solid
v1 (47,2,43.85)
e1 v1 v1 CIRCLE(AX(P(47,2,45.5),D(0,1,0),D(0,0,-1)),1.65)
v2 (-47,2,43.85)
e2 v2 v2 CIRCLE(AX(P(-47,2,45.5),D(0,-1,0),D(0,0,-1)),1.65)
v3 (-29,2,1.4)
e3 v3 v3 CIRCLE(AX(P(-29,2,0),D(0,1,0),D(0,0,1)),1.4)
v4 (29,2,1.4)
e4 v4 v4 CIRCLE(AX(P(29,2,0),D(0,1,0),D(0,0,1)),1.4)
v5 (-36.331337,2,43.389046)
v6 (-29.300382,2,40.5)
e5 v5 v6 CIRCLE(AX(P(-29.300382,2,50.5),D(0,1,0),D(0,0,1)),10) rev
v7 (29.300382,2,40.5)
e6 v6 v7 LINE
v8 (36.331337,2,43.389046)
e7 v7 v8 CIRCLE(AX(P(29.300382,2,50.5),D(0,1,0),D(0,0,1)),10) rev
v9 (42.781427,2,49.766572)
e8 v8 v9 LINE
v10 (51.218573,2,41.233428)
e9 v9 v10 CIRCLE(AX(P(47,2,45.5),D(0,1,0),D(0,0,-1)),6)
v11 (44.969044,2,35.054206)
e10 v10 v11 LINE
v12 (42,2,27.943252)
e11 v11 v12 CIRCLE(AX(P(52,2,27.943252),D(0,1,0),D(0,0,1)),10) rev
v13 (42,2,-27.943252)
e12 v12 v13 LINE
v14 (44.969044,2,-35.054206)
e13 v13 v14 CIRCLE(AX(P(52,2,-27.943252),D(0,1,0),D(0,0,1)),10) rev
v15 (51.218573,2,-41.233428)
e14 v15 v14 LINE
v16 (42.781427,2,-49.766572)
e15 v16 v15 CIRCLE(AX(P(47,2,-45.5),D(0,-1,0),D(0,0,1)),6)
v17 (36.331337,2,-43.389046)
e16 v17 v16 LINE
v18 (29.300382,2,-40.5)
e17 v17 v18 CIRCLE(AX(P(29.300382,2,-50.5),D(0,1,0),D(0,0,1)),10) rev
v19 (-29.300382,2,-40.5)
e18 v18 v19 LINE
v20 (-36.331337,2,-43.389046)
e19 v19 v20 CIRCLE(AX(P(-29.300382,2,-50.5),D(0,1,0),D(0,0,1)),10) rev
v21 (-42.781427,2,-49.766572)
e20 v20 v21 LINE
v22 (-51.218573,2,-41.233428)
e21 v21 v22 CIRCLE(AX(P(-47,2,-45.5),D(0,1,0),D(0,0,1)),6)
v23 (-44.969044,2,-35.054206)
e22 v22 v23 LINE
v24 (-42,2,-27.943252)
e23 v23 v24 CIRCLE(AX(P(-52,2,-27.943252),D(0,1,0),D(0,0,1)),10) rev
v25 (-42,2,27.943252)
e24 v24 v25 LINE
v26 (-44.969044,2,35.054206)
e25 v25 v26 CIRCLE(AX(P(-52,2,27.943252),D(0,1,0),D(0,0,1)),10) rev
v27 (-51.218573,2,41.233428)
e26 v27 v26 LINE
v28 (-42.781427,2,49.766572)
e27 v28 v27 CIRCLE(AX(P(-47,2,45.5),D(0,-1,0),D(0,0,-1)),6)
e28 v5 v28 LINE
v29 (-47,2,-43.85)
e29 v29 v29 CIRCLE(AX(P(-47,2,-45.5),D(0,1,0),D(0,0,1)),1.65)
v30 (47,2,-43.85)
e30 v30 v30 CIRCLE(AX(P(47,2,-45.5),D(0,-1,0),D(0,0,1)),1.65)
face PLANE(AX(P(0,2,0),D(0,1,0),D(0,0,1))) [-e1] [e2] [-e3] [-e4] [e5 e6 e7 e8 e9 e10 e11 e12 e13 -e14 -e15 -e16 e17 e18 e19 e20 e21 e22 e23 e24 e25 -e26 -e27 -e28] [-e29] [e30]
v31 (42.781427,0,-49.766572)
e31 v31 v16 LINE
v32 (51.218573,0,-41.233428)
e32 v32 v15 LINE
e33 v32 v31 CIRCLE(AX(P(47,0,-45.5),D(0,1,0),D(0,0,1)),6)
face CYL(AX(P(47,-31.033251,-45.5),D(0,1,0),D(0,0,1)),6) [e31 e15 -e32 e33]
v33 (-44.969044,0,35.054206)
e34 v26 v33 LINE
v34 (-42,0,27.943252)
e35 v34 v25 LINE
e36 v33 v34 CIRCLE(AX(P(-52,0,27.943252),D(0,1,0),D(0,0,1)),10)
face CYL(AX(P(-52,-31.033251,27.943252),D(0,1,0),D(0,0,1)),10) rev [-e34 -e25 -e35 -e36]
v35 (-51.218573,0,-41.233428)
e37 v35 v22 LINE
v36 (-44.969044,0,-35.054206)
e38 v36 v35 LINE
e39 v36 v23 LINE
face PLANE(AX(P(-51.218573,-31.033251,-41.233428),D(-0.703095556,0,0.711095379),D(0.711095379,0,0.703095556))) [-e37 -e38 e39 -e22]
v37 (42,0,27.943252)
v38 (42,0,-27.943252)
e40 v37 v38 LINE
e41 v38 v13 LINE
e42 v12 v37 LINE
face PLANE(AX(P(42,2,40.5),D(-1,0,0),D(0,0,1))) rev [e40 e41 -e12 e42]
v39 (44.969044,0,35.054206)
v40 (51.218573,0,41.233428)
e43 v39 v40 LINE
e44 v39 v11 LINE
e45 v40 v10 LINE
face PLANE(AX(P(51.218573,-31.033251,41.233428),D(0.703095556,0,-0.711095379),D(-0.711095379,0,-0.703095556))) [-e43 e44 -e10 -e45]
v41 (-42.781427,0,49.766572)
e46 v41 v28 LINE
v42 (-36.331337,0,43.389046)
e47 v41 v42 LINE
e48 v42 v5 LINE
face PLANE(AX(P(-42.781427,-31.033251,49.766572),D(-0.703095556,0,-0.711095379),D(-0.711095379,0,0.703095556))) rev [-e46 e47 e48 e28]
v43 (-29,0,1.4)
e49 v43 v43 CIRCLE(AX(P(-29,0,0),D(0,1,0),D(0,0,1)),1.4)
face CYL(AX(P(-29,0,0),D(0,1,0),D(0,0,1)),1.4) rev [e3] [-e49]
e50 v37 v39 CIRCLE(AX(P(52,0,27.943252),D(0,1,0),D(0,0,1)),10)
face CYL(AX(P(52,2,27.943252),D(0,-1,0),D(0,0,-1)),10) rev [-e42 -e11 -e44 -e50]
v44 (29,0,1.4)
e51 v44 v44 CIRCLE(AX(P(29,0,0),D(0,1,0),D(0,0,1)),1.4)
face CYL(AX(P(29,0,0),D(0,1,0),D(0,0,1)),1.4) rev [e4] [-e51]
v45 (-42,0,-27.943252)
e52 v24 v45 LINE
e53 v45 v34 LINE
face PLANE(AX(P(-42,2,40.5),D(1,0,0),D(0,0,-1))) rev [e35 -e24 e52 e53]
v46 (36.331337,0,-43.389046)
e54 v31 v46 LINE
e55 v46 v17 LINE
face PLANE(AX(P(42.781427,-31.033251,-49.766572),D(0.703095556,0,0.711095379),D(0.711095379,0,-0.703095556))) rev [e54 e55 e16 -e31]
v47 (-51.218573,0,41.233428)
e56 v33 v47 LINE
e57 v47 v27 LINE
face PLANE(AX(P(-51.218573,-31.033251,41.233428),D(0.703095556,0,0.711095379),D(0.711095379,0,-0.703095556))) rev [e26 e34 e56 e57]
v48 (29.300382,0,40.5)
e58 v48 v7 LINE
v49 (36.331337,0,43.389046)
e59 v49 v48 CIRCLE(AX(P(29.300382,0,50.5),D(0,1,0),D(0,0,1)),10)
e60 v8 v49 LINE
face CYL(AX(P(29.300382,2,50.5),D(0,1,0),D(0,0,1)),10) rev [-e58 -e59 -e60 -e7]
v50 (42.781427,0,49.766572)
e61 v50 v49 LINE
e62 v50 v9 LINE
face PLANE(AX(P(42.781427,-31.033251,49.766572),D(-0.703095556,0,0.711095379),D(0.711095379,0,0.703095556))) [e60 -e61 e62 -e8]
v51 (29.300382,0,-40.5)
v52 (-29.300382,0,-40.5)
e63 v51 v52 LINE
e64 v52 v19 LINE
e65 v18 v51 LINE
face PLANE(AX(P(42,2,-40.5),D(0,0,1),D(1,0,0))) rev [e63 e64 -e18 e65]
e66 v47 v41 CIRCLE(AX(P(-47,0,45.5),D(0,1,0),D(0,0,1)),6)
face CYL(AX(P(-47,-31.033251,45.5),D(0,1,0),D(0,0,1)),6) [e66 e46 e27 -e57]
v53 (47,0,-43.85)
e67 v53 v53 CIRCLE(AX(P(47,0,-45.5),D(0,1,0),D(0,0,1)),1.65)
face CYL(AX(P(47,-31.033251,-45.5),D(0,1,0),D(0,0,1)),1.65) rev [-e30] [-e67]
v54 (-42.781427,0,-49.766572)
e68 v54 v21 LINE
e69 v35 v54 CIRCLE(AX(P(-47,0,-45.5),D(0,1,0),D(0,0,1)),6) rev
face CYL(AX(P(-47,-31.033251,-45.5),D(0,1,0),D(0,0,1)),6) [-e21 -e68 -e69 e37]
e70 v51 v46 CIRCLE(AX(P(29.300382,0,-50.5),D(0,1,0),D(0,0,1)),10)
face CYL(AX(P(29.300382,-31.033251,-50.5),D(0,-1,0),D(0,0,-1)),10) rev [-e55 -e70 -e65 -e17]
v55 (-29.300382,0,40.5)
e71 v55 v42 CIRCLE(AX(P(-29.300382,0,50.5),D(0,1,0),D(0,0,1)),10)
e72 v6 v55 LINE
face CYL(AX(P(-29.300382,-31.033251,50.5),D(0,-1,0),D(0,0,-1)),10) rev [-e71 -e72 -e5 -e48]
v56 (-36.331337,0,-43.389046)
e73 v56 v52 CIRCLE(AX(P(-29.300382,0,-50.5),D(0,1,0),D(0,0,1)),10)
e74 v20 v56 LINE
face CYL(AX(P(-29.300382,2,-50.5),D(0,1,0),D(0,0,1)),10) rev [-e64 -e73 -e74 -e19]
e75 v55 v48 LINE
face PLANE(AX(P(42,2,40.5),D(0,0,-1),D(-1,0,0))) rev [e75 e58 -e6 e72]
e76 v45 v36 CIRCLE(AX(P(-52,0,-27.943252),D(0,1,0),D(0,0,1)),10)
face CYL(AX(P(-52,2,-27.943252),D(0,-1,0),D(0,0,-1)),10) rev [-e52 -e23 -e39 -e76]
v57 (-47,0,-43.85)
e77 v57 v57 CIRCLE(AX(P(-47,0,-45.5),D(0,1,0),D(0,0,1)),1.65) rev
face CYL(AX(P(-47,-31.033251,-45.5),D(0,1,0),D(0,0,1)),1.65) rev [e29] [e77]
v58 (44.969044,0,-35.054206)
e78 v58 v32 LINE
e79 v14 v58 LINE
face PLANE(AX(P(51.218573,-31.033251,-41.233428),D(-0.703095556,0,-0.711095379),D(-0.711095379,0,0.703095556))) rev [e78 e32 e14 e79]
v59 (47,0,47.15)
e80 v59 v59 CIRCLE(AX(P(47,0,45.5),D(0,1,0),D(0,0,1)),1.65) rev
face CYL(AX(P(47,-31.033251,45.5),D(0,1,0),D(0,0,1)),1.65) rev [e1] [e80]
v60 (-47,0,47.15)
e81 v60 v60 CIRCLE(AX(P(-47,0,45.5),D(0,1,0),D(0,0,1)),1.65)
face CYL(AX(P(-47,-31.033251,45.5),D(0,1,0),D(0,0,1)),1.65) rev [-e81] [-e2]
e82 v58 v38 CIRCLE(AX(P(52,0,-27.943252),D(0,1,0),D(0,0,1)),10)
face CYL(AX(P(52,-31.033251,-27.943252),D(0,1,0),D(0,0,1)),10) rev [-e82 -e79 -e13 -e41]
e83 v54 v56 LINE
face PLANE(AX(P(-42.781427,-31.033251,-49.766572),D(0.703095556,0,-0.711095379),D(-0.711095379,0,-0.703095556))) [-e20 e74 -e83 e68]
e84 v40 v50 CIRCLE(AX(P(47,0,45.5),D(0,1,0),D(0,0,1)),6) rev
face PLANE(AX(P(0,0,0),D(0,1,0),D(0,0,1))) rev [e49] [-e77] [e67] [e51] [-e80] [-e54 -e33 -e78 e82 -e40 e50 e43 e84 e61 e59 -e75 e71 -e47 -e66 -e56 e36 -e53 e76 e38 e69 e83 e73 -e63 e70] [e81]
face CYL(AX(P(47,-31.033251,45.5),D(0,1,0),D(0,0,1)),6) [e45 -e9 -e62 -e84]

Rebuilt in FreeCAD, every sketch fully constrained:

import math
import FreeCAD as App
import Part
import Sketcher
from FreeCAD import Vector
Q = App.Units.Quantity


def edges_at(feature, points):
    """Names of the edges that pass closest to the given points."""
    edges = feature.Shape.Edges
    near = lambda p: min(range(len(edges)), key=lambda i: edges[i].distToShape(Part.Vertex(*p))[0])
    return sorted({f"Edge{near(p) + 1}" for p in points})

doc = App.newDocument("Part")
body = doc.addObject("PartDesign::Body", "Body")

sketch1 = body.newObject("Sketcher::SketchObject", "Sketch")
sketch1.AttachmentSupport = (doc.getObject("XZ_Plane"), [""])
sketch1.MapMode = "FlatFace"
sketch1.addGeometry([
    Part.LineSegment(Vector(-42, -40, 0), Vector(-42, 40, 0)),
    Part.LineSegment(Vector(-42, 40, 0), Vector(42, 40, 0)),
    Part.LineSegment(Vector(42, 40, 0), Vector(42, -40, 0)),
    Part.LineSegment(Vector(42, -40, 0), Vector(-42, -40, 0)),
], False)
sketch1.addConstraint([
    Sketcher.Constraint("Coincident", 0, 2, 1, 1),
    Sketcher.Constraint("Coincident", 1, 2, 2, 1),
    Sketcher.Constraint("Coincident", 2, 2, 3, 1),
    Sketcher.Constraint("Coincident", 3, 2, 0, 1),
    Sketcher.Constraint("Vertical", 0),
    Sketcher.Constraint("Horizontal", 1),
    Sketcher.Constraint("Vertical", 2),
    Sketcher.Constraint("Horizontal", 3),
    Sketcher.Constraint("Symmetric", 0, 2, 2, 2, -1, 1),
    Sketcher.Constraint("DistanceX", 1, 1, 1, 2, Q("84 mm")),
    Sketcher.Constraint("DistanceY", 0, 1, 0, 2, Q("81 mm")),
])
pad1 = body.newObject("PartDesign::Pad", "Pad")
pad1.Profile = sketch1
pad1.Length = 2
pad1.Reversed = True

sketch2 = body.newObject("Sketcher::SketchObject", "Sketch001")
sketch2.AttachmentSupport = (doc.getObject("XZ_Plane"), [""])
sketch2.MapMode = "FlatFace"
sketch2.AttachmentOffset = App.Placement(Vector(0, 0, -2), App.Rotation())
sketch2.addGeometry([
    Part.LineSegment(Vector(-32.8, -39.9, 0), Vector(-42.8, -49.8, 0)),
    Part.ArcOfCircle(Part.Circle(Vector(-47, -45.5, 0), Vector(0, 0, 1), 6), math.radians(135), math.radians(315)),
    Part.LineSegment(Vector(-51.2, -41.2, 0), Vector(-41.2, -31.3, 0)),
    Part.ArcOfCircle(Part.Circle(Vector(-37, -35.6, 0), Vector(0, 0, 1), 6), math.radians(-45), math.radians(135)),
    Part.Circle(Vector(-47, -45.5, 0), Vector(0, 0, 1), 1.6),
], False)
sketch2.addConstraint([
    Sketcher.Constraint("Tangent", 0, 2, 1, 2),
    Sketcher.Constraint("Tangent", 1, 1, 2, 1),
    Sketcher.Constraint("Tangent", 2, 2, 3, 2),
    Sketcher.Constraint("Tangent", 3, 1, 0, 1),
    Sketcher.Constraint("Coincident", 4, 3, 1, 3),
    Sketcher.Constraint("Equal", 1, 3),
    Sketcher.Constraint("Radius", 1, Q("6 mm")),
    Sketcher.Constraint("Diameter", 4, Q("3.3 mm")),
    Sketcher.Constraint("DistanceX", 1, 3, -1, 1, Q("47 mm")),
    Sketcher.Constraint("DistanceX", 3, 3, -1, 1, Q("37 mm")),
    Sketcher.Constraint("DistanceY", 1, 3, -1, 1, Q("45.5 mm")),
    Sketcher.Constraint("DistanceY", 3, 3, -1, 1, Q("35.6125 mm")),
])
pad2 = body.newObject("PartDesign::Pad", "Pad001")
pad2.Profile = sketch2
pad2.Length = 2
doc.recompute()

mirrored = body.newObject("PartDesign::Mirrored", "Mirrored")
mirrored.Originals = [pad2]
mirrored.MirrorPlane = (doc.getObject("XY_Plane"), [""])
body.Tip = mirrored
doc.recompute()

mirrored2 = body.newObject("PartDesign::Mirrored", "Mirrored001")
mirrored2.Originals = [pad2]
mirrored2.MirrorPlane = (doc.getObject("YZ_Plane"), [""])
body.Tip = mirrored2

sketch3 = body.newObject("Sketcher::SketchObject", "Sketch002")
sketch3.AttachmentSupport = (doc.getObject("XZ_Plane"), [""])
sketch3.MapMode = "FlatFace"
sketch3.AttachmentOffset = App.Placement(Vector(0, 0, -2), App.Rotation())
sketch3.addGeometry([
    Part.LineSegment(Vector(32.8, 39.9, 0), Vector(42.8, 49.8, 0)),
    Part.ArcOfCircle(Part.Circle(Vector(47, 45.5, 0), Vector(0, 0, 1), 6), math.radians(-45), math.radians(135)),
    Part.LineSegment(Vector(51.2, 41.2, 0), Vector(41.2, 31.3, 0)),
    Part.ArcOfCircle(Part.Circle(Vector(37, 35.6, 0), Vector(0, 0, 1), 6), math.radians(135), math.radians(315)),
    Part.Circle(Vector(47, 45.5, 0), Vector(0, 0, 1), 1.6),
], False)
sketch3.addConstraint([
    Sketcher.Constraint("Tangent", 0, 2, 1, 2),
    Sketcher.Constraint("Tangent", 1, 1, 2, 1),
    Sketcher.Constraint("Tangent", 2, 2, 3, 2),
    Sketcher.Constraint("Tangent", 3, 1, 0, 1),
    Sketcher.Constraint("Coincident", 4, 3, 1, 3),
    Sketcher.Constraint("Equal", 1, 3),
    Sketcher.Constraint("Radius", 1, Q("6 mm")),
    Sketcher.Constraint("Diameter", 4, Q("3.3 mm")),
    Sketcher.Constraint("DistanceX", -1, 1, 1, 3, Q("47 mm")),
    Sketcher.Constraint("DistanceX", -1, 1, 3, 3, Q("37 mm")),
    Sketcher.Constraint("DistanceY", -1, 1, 1, 3, Q("45.5 mm")),
    Sketcher.Constraint("DistanceY", -1, 1, 3, 3, Q("35.6125 mm")),
])
pad3 = body.newObject("PartDesign::Pad", "Pad002")
pad3.Profile = sketch3
pad3.Length = 2
doc.recompute()

fillet = body.newObject("PartDesign::Fillet", "Fillet")
fillet.Base = (pad3, edges_at(pad3, [
    (-42, 1, -32.119),
    (-33.409, 1, -40.5),
    (-42, 1, 32.119),
    (-33.409, 1, 40.5),
    (42, 1, -32.119),
    (33.409, 1, -40.5),
    (42, 1, 32.119),
    (33.409, 1, 40.5),
]))
fillet.Radius = 10

sketch4 = body.newObject("Sketcher::SketchObject", "Sketch003")
sketch4.AttachmentSupport = (doc.getObject("XZ_Plane"), [""])
sketch4.MapMode = "FlatFace"
sketch4.AttachmentOffset = App.Placement(Vector(0, 0, -2), App.Rotation())
sketch4.addGeometry([
    Part.Circle(Vector(-29, 0, 0), Vector(0, 0, 1), 1.4),
    Part.Circle(Vector(29, 0, 0), Vector(0, 0, 1), 1.4),
], False)
sketch4.addConstraint([
    Sketcher.Constraint("Equal", 0, 1),
    Sketcher.Constraint("Symmetric", 0, 3, 1, 3, -1, 1),
    Sketcher.Constraint("PointOnObject", 0, 3, -1),
    Sketcher.Constraint("Diameter", 0, Q("2.8 mm")),
    Sketcher.Constraint("DistanceX", 0, 3, -1, 1, Q("29 mm")),
])
pocket1 = body.newObject("PartDesign::Pocket", "Pocket")
pocket1.Profile = sketch4
pocket1.Type = "ThroughAll"
pocket1.Reversed = True

doc.recompute()
